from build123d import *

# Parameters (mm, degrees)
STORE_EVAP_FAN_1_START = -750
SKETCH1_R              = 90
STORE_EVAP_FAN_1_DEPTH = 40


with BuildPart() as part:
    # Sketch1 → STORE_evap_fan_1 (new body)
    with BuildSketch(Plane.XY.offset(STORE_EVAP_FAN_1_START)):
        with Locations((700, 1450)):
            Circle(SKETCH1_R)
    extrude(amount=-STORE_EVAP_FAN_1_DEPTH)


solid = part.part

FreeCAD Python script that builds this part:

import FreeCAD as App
import Part
import Sketcher
from FreeCAD import Vector
Q = App.Units.Quantity

doc = App.newDocument("Part")
params = doc.addObject("Spreadsheet::Sheet", "Params")
for row, (alias, value) in enumerate([
    ("sketch1_diameter", "180 mm"),
    ("pad1_length", "40 mm"),
], start=1):
    params.set(f"A{row}", alias)
    params.set(f"B{row}", "=" + value)
    params.setAlias(f"B{row}", alias)

body = doc.addObject("PartDesign::Body", "Body")

# Sketch on XY plane
sketch1 = body.newObject("Sketcher::SketchObject", "Sketch")
sketch1.AttachmentSupport = (doc.getObject("XY_Plane"), [""])
sketch1.MapMode = "FlatFace"
sketch1.AttachmentOffset = App.Placement(Vector(0, 0, -750), App.Rotation())
sketch1.addGeometry(Part.Circle(Vector(700, 1450, 0), Vector(0, 0, 1), 90), False)
sketch1.addConstraint(Sketcher.Constraint("Diameter", 0, Q("180 mm")))
sketch1.addConstraint(Sketcher.Constraint("DistanceX", -1, 1, 0, 3, Q("700 mm")))
sketch1.addConstraint(Sketcher.Constraint("DistanceY", -1, 1, 0, 3, Q("1450 mm")))
sketch1.setExpression("Constraints[0]", "Params.sketch1_diameter")
pad1 = body.newObject("PartDesign::Pad", "Pad")
pad1.Profile = sketch1
pad1.setExpression("Length", "Params.pad1_length")
pad1.Reversed = True

doc.recompute()
